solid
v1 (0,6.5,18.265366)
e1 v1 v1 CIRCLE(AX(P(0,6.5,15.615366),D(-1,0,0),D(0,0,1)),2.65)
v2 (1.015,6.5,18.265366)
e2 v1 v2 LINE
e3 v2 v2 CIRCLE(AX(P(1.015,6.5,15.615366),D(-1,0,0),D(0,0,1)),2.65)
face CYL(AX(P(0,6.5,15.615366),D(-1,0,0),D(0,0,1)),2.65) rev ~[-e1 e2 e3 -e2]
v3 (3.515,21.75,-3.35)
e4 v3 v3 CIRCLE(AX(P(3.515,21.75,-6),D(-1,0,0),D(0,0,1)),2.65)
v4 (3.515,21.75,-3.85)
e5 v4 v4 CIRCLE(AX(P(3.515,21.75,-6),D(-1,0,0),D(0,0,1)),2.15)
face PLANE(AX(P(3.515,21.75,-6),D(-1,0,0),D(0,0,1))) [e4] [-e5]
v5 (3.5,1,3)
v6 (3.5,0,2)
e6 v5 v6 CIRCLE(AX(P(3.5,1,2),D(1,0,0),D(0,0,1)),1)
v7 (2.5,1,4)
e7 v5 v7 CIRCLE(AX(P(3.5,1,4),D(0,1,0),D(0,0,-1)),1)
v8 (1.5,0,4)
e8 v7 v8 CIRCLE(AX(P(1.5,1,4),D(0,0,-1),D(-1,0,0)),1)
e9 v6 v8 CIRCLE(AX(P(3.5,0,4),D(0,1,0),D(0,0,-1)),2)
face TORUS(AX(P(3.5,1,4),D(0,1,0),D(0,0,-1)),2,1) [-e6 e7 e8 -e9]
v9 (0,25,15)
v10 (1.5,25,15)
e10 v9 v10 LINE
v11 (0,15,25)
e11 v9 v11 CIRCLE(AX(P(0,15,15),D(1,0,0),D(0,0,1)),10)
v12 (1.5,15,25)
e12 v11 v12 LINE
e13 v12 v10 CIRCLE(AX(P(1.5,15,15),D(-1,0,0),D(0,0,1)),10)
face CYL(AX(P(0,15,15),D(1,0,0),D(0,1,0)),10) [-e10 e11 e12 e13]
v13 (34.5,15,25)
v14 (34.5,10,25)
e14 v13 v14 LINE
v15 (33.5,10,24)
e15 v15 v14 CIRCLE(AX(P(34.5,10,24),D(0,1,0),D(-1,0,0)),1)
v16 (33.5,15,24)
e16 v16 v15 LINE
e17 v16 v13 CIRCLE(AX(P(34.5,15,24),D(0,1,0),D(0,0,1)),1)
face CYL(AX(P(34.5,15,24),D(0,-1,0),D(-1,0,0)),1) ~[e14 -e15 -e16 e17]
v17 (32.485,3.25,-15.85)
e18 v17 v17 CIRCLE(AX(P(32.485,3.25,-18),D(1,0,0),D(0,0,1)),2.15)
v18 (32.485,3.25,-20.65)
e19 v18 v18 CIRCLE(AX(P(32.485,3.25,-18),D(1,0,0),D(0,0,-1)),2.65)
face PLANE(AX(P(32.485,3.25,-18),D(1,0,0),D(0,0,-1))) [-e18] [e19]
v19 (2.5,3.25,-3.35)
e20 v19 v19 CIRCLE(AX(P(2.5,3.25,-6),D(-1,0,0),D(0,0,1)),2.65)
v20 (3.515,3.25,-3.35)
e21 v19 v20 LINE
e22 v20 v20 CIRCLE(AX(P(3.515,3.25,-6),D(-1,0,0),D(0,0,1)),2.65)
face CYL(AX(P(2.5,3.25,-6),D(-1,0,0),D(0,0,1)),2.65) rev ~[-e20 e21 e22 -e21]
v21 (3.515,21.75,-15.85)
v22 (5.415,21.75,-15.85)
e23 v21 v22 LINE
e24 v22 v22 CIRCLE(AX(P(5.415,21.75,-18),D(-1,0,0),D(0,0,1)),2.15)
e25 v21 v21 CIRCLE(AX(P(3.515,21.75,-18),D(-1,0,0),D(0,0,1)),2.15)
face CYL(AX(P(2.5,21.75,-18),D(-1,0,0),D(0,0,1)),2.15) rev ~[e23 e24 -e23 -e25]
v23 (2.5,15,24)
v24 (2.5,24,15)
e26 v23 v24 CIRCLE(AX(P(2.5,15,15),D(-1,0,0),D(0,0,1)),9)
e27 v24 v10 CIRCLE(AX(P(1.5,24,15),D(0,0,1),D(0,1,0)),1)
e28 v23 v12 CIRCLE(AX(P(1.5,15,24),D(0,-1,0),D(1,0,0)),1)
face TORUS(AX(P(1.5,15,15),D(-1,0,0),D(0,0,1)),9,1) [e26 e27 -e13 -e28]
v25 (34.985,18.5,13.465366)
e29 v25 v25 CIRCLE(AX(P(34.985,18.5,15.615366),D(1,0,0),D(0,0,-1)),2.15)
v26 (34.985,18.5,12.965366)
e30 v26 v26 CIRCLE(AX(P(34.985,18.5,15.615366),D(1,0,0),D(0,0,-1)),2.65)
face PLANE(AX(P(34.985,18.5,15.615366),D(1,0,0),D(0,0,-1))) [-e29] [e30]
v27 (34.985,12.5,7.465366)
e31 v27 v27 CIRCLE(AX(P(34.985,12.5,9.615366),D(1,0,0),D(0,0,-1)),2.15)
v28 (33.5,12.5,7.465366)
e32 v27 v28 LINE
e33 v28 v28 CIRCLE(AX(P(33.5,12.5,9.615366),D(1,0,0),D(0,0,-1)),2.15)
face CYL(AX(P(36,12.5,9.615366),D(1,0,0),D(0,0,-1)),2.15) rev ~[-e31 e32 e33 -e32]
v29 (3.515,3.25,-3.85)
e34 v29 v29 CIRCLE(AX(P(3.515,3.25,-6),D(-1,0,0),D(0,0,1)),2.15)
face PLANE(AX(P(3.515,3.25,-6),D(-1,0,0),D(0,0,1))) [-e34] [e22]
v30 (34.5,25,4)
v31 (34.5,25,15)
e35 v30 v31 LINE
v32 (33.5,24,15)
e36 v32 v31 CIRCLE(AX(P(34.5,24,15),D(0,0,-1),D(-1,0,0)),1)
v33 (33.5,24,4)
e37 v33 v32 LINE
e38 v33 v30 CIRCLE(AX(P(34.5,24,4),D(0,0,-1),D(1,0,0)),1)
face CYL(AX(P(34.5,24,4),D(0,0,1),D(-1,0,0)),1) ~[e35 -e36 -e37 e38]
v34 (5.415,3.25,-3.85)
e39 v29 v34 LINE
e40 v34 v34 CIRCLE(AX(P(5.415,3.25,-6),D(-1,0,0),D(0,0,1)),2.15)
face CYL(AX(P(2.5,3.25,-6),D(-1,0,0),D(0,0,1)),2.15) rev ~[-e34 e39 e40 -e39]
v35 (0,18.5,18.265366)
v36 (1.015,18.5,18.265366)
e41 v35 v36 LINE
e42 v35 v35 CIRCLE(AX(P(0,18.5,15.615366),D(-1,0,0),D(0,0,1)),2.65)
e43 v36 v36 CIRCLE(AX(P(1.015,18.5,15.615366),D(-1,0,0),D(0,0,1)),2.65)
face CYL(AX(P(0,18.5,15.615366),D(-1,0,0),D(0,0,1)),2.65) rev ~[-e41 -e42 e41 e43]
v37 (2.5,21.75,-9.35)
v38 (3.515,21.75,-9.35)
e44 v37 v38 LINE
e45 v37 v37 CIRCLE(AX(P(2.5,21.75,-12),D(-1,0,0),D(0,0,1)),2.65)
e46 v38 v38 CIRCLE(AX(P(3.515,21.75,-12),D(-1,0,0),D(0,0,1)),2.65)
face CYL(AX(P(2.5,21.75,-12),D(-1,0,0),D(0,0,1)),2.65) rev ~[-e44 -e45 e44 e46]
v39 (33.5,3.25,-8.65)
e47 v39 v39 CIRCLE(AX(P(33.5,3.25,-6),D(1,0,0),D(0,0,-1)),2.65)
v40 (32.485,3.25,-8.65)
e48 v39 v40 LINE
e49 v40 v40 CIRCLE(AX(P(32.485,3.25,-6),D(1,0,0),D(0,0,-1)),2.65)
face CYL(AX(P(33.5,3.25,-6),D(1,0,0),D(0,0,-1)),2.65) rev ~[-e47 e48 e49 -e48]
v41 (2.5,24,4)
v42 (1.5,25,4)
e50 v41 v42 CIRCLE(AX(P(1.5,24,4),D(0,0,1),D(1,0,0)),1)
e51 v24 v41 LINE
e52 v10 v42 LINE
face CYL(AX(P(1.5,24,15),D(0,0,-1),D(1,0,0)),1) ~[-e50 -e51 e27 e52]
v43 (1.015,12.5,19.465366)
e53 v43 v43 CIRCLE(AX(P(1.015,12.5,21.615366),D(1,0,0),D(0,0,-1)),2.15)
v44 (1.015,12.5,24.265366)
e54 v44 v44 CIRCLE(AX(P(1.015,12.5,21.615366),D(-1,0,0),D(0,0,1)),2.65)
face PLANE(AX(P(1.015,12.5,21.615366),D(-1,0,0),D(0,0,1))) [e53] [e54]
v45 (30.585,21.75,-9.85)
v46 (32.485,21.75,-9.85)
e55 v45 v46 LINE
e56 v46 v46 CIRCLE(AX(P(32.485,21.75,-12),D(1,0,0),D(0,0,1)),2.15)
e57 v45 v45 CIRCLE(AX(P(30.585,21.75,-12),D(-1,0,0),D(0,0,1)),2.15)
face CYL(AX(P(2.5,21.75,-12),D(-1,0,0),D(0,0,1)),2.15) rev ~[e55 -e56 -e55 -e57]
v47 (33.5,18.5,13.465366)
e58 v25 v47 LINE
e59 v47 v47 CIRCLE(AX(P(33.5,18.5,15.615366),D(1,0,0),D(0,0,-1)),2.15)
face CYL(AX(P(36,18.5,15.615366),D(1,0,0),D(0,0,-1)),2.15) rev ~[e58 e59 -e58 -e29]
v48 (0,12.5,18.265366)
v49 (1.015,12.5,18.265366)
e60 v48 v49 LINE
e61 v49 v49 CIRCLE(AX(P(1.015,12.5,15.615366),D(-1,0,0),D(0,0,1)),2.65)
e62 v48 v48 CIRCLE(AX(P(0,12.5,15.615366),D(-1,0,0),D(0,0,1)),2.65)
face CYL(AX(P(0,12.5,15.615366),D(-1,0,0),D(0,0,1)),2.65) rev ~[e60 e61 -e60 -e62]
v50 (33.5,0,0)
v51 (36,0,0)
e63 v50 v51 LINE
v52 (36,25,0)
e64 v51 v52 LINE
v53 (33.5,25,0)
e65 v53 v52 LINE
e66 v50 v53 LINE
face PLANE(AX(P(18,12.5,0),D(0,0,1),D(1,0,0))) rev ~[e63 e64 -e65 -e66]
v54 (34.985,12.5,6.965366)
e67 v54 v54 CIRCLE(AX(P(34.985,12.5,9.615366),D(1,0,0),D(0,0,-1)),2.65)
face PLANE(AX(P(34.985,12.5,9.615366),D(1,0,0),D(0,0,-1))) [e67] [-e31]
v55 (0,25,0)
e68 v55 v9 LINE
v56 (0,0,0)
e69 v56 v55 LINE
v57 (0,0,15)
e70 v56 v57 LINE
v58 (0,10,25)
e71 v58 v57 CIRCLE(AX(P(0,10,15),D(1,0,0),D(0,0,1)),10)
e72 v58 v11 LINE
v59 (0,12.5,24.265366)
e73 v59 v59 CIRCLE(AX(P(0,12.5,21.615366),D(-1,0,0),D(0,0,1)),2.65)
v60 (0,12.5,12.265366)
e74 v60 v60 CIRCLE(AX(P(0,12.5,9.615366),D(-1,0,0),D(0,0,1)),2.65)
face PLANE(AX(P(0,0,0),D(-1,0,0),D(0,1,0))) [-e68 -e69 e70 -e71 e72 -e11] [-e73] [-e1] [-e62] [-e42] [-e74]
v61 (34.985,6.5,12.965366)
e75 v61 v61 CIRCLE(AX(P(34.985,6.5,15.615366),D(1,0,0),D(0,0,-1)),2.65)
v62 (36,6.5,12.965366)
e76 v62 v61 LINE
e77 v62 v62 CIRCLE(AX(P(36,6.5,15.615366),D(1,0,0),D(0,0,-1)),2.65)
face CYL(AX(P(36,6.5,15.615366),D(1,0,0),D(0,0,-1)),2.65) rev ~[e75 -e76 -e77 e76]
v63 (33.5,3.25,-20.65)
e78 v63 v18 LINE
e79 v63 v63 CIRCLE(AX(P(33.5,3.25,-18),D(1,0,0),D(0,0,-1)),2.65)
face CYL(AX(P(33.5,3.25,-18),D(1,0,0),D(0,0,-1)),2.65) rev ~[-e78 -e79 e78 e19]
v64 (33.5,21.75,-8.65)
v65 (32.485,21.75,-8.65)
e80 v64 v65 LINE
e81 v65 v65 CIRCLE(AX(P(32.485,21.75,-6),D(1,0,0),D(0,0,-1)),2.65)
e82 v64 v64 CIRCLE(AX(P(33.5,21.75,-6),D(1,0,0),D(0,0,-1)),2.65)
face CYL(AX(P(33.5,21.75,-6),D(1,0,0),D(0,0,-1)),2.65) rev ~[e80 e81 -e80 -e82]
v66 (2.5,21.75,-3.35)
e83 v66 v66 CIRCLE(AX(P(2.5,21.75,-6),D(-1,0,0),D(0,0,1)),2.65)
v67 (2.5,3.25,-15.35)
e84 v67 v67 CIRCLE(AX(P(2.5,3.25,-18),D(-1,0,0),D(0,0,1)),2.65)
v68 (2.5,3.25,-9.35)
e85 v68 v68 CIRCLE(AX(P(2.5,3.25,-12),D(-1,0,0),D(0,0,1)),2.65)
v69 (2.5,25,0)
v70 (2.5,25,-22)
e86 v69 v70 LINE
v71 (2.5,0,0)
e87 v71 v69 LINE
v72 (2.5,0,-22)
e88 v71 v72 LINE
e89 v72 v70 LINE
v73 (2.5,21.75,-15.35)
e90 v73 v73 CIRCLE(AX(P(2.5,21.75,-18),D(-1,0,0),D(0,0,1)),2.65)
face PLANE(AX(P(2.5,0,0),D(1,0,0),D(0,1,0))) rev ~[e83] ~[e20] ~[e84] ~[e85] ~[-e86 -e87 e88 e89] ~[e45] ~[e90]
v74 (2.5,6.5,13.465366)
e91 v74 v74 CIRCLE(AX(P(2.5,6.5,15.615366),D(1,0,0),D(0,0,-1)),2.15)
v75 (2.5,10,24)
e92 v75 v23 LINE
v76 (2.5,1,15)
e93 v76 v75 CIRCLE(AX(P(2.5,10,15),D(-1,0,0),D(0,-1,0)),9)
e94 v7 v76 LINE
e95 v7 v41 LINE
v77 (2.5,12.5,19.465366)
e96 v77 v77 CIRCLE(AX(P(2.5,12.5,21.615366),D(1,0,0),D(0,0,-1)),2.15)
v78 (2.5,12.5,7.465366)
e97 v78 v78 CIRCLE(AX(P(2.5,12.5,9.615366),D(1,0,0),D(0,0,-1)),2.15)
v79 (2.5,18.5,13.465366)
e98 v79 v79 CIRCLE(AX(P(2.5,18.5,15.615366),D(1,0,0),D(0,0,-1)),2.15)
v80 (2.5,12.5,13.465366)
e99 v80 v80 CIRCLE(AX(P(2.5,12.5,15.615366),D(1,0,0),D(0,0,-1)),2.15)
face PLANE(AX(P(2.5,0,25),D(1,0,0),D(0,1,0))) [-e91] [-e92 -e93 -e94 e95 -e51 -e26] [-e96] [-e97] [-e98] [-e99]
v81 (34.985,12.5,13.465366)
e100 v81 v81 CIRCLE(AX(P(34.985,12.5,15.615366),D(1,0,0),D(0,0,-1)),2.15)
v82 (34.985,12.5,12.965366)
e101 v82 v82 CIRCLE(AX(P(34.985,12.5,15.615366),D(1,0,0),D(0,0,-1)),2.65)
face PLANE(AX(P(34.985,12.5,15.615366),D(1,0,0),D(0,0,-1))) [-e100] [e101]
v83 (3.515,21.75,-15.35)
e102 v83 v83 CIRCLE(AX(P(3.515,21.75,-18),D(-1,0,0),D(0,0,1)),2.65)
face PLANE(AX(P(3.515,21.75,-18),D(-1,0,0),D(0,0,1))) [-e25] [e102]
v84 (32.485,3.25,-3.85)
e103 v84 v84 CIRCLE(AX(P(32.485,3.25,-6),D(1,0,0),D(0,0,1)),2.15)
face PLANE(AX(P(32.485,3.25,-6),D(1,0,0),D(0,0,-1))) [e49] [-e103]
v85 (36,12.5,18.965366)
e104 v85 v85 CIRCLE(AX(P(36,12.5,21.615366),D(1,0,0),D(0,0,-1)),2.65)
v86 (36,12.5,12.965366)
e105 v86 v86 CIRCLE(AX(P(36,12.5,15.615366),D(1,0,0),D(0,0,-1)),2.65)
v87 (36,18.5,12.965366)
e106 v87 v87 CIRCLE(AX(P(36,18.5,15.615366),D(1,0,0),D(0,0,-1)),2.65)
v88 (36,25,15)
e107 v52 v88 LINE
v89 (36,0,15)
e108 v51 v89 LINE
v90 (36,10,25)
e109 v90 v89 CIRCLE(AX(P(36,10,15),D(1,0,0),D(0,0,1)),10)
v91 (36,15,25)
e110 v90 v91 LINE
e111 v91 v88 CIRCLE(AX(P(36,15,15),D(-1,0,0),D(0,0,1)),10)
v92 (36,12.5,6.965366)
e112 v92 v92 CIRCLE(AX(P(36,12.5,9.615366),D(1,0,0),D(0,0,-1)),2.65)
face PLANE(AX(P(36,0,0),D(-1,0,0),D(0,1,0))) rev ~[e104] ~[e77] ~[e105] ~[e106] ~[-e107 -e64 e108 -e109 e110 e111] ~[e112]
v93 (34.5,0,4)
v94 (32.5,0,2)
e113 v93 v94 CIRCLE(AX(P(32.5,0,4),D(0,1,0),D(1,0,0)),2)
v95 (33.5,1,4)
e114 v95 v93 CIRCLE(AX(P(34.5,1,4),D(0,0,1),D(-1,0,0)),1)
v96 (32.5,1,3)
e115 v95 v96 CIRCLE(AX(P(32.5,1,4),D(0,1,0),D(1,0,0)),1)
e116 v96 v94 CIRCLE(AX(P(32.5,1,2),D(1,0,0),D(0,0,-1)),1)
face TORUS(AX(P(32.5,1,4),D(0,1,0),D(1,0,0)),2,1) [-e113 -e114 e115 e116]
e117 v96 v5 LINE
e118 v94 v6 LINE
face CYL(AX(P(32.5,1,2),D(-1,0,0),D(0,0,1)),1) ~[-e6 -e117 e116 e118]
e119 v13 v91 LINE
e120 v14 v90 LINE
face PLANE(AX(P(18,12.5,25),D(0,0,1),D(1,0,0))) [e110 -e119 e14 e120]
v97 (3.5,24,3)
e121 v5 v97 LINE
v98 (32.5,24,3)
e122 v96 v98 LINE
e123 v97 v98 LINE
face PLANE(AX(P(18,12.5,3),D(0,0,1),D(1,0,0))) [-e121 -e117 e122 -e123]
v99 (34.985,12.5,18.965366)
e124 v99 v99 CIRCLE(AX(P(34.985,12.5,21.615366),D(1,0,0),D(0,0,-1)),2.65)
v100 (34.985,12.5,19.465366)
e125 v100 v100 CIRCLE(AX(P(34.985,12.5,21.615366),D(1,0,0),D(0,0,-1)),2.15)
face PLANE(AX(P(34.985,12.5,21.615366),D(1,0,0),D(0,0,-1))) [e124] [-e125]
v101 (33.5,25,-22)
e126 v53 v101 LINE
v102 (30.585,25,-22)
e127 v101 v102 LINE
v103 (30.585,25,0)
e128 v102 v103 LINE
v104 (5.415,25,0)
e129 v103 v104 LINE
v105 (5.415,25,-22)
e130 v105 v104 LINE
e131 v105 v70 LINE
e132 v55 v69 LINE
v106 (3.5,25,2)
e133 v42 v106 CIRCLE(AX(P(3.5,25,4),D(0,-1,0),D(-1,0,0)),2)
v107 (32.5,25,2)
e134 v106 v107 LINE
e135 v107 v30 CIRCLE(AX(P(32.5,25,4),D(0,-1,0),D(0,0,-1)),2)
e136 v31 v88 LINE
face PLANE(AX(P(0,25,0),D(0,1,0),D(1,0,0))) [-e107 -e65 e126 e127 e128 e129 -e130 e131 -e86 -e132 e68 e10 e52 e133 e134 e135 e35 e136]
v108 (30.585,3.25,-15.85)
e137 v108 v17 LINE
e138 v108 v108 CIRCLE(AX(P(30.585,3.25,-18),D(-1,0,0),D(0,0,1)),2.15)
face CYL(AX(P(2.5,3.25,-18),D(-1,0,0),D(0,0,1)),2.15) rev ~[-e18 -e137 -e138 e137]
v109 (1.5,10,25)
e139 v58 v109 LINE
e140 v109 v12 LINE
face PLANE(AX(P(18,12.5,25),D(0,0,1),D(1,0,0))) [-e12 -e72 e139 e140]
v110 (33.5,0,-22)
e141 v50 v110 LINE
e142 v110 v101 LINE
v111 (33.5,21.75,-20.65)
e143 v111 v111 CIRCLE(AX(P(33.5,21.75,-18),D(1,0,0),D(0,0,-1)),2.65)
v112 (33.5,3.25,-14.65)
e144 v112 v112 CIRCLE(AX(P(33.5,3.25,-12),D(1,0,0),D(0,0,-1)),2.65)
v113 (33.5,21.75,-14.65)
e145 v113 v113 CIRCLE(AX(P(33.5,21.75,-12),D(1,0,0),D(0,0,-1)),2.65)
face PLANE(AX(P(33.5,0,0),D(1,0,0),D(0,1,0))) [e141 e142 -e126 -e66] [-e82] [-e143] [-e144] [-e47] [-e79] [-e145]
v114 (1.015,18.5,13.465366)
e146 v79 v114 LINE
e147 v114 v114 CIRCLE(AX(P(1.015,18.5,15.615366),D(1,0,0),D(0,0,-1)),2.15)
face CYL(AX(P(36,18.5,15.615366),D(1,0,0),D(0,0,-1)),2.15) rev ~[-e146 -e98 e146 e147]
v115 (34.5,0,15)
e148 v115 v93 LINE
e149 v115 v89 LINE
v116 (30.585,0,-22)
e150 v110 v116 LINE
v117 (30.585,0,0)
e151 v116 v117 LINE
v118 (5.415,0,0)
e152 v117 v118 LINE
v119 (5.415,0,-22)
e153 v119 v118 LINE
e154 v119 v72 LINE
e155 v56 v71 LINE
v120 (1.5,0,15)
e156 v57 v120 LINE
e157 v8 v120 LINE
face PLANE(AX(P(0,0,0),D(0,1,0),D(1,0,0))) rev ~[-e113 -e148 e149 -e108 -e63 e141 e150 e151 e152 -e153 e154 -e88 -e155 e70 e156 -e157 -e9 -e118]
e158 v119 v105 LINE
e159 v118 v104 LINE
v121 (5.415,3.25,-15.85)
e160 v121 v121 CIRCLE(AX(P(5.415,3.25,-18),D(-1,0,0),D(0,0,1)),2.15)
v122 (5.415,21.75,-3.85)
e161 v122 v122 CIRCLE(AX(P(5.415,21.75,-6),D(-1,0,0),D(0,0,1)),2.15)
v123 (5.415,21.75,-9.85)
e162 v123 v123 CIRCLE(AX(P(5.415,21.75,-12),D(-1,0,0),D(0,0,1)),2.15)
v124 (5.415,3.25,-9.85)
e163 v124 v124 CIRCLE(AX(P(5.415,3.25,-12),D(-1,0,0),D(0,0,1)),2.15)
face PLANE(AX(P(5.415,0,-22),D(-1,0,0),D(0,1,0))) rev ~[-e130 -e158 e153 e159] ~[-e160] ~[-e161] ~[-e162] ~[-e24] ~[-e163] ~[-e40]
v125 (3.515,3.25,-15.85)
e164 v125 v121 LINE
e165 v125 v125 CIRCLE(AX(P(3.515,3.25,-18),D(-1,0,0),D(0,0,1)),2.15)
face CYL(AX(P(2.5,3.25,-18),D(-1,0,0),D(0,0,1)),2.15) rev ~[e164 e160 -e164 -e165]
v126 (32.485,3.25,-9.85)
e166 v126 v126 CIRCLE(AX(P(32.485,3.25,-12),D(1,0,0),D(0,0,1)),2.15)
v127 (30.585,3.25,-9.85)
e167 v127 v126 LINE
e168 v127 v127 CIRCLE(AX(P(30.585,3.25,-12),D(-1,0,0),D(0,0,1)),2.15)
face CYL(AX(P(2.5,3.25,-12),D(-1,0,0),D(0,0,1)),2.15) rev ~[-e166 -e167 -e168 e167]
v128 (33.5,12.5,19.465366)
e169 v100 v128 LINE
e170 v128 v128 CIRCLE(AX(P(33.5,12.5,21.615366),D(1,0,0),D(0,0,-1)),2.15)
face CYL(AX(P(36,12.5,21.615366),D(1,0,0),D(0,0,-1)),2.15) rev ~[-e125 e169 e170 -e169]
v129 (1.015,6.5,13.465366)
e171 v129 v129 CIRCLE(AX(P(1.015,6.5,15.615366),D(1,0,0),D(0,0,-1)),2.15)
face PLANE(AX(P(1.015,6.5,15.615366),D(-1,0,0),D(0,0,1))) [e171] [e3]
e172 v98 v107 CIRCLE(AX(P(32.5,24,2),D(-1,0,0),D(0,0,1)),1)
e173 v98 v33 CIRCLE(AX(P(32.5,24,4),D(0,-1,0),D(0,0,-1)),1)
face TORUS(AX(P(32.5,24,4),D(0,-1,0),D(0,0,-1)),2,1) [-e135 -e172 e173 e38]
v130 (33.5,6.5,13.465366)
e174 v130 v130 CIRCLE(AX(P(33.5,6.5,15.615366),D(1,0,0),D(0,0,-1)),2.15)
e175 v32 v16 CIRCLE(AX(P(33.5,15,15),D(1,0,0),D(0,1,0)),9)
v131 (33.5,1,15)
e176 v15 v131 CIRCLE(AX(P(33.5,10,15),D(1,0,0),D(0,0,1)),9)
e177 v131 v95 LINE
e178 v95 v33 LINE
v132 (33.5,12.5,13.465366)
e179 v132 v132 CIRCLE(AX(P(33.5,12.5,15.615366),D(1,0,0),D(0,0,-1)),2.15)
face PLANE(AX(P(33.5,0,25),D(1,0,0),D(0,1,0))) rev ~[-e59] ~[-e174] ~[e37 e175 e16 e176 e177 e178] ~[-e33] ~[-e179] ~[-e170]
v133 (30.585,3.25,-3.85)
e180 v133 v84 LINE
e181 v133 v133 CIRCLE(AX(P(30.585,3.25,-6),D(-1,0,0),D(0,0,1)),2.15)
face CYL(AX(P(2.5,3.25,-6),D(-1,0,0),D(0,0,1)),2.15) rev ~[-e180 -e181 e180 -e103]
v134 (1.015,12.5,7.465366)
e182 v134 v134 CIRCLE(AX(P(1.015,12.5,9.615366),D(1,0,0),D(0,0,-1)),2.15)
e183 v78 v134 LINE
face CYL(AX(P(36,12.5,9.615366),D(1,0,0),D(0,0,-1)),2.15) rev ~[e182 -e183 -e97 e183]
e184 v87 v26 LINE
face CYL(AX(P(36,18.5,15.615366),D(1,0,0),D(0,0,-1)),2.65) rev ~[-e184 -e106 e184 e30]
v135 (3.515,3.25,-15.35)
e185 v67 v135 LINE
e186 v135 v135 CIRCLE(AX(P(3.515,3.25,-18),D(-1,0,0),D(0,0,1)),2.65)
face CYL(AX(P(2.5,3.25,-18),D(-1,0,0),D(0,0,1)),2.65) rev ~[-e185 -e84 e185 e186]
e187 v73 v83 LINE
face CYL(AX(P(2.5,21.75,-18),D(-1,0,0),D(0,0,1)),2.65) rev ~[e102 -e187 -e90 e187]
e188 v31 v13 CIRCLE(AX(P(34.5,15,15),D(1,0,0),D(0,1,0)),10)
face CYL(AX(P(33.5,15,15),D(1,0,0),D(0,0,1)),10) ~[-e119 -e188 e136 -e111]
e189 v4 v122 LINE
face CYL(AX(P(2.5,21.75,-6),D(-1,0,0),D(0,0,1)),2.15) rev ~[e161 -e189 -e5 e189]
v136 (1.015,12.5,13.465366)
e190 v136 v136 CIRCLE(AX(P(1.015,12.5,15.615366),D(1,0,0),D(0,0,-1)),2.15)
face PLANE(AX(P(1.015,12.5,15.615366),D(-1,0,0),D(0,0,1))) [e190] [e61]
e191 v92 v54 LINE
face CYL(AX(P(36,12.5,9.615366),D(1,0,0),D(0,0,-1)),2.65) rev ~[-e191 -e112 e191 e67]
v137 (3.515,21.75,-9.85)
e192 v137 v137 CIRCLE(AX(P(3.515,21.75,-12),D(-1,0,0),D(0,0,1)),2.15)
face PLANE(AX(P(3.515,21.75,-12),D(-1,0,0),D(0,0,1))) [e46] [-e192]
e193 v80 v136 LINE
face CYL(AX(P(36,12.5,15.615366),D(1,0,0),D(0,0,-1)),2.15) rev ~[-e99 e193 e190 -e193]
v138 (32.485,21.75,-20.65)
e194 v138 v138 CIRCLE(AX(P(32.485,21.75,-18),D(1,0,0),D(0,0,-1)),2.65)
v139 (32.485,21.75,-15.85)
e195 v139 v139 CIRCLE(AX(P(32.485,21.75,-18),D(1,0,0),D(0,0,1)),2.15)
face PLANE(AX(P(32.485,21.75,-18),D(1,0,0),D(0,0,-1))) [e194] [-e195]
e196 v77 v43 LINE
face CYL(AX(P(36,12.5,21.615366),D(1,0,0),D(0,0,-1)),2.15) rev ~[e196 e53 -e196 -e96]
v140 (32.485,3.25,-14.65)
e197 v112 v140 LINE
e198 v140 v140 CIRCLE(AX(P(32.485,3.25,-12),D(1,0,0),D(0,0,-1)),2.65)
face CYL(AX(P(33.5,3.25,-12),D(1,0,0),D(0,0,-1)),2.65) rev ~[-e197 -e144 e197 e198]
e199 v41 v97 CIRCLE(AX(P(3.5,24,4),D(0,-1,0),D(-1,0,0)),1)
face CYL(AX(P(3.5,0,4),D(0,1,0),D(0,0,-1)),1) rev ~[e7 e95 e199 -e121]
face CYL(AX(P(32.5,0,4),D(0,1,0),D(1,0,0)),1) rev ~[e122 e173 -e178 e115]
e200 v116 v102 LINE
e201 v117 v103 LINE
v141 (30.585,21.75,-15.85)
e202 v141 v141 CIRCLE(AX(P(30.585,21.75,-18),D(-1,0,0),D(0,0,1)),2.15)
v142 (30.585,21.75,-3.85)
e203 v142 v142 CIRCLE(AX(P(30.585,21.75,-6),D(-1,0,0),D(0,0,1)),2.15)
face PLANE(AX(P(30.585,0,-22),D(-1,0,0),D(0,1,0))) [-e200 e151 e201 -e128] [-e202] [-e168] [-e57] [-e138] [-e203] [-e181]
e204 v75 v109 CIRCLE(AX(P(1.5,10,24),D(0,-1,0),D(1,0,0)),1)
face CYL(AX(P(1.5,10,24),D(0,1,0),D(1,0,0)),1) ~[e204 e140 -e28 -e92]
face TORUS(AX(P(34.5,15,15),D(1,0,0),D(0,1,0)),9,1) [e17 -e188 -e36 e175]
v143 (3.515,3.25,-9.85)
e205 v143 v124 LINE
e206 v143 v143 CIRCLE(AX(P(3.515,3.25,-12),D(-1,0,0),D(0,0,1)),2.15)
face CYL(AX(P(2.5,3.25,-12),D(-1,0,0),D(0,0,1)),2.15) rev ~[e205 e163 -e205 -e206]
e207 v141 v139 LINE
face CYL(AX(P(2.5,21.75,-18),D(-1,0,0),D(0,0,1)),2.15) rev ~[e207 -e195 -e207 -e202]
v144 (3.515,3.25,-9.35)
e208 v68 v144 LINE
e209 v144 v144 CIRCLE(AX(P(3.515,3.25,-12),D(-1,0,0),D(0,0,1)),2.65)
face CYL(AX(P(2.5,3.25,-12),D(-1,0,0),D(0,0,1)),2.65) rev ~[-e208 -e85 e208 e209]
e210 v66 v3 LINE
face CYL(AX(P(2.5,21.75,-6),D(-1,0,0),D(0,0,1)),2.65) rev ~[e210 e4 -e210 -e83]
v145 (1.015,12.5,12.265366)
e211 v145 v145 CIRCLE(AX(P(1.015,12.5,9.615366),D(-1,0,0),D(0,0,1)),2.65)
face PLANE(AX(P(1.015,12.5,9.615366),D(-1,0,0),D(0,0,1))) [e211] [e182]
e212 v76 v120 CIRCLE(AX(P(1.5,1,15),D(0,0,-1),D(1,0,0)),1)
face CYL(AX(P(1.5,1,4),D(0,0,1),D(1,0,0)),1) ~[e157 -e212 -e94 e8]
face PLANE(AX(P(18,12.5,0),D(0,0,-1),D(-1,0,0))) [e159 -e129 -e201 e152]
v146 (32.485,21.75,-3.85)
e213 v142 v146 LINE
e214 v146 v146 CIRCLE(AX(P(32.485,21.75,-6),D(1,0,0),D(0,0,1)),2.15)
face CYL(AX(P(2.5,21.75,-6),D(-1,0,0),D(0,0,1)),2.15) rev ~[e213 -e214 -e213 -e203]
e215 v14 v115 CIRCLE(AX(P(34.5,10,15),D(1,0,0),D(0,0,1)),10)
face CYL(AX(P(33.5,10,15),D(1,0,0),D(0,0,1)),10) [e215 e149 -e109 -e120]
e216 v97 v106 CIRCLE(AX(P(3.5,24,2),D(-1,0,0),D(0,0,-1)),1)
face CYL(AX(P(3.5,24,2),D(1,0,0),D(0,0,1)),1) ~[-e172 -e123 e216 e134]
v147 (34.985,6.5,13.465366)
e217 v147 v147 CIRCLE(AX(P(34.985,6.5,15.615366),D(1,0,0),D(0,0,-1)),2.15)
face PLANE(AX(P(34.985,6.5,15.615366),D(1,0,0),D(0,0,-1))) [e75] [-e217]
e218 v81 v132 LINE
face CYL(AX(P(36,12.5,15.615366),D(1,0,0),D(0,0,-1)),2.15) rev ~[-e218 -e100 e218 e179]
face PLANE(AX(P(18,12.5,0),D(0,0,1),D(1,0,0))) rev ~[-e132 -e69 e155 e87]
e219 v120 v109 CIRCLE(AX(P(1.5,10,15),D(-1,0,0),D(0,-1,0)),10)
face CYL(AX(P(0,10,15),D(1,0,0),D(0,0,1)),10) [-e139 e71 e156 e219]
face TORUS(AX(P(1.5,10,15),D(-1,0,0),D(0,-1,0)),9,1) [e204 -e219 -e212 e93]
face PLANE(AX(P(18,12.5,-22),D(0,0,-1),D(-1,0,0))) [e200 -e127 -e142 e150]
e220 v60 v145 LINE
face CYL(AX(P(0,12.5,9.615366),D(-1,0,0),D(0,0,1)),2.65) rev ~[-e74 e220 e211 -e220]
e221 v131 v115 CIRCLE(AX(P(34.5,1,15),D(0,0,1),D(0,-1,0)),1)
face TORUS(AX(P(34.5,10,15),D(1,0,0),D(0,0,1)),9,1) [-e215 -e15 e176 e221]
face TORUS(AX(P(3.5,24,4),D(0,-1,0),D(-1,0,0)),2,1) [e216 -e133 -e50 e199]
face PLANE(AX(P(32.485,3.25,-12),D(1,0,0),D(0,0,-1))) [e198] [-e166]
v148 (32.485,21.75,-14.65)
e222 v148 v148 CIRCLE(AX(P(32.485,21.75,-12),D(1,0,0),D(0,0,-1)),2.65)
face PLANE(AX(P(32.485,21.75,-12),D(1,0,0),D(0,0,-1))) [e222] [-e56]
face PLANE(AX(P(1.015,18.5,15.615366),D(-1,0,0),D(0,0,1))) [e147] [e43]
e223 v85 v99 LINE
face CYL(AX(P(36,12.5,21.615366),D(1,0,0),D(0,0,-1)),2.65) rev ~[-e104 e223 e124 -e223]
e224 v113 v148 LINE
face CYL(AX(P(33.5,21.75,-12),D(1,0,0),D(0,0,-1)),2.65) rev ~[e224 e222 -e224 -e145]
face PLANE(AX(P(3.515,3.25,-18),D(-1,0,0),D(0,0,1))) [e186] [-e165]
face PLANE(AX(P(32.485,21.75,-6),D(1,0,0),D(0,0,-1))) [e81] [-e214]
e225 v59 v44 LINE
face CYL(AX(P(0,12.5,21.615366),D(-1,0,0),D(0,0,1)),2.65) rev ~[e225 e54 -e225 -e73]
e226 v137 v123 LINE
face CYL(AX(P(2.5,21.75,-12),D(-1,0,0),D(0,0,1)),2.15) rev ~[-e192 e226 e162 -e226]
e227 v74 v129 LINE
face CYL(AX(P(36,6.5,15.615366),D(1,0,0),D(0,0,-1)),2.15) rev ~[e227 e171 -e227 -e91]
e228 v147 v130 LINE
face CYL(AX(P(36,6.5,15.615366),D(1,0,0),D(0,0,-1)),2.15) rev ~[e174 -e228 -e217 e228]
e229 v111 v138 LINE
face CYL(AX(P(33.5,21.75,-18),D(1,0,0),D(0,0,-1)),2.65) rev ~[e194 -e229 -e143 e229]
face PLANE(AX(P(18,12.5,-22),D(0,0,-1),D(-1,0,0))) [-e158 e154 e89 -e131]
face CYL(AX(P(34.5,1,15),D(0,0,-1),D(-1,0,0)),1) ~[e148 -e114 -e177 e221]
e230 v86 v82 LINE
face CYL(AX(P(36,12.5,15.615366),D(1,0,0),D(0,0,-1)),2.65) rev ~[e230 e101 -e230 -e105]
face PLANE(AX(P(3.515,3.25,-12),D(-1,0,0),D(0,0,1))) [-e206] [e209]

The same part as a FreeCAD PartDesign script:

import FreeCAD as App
import Part
import Sketcher

V = App.Vector
Q = App.Units.Quantity


def edges_at(feature, points):
    """Names of the edges that pass closest to the given points."""
    edges = feature.Shape.Edges
    near = lambda p: min(range(len(edges)), key=lambda i: edges[i].distToShape(Part.Vertex(*p))[0])
    return sorted({f"Edge{near(p) + 1}" for p in points})

doc = App.newDocument("Part")
params = doc.addObject("Spreadsheet::Sheet", "Params")
for row, (alias, value) in enumerate([
    ("sketch1_width", "36 mm"),
    ("sketch1_height", "25 mm"),
    ("pad1_length", "25 mm"),
    ("sketch2_width", "31 mm"),
    ("sketch2_height", "25 mm"),
    ("pocket1_length", "22 mm"),
    ("sketch3_diameter", "4.3 mm"),
    ("sketch4_diameter", "5.3 mm"),
    ("sketch4_diameter2", "4.3 mm"),
    ("pocket3_length", "1.015 mm"),
    ("sketch5_diameter", "5.3 mm"),
    ("sketch5_diameter2", "4.3 mm"),
    ("pocket4_length", "1.015 mm"),
    ("sketch6_width", "31 mm"),
    ("sketch6_height", "25 mm"),
    ("pad2_length", "22 mm"),
    ("sketch7_height", "25 mm"),
    ("sketch7_width", "25.17 mm"),
    ("pocket5_length", "22 mm"),
    ("sketch8_diameter", "4.3 mm"),
    ("sketch9_diameter", "5.3 mm"),
    ("sketch9_diameter2", "4.3 mm"),
    ("pocket7_length", "1.015 mm"),
    ("sketch10_diameter", "5.3 mm"),
    ("sketch10_diameter2", "4.3 mm"),
    ("pocket8_length", "1.015 mm"),
    ("fillet_radius", "10 mm"),
    ("fillet2_radius", "1 mm"),
    ("fillet3_radius", "1 mm"),
    ("fillet4_radius", "1 mm"),
], start=1):
    params.set(f"A{row}", alias)
    params.set(f"B{row}", "=" + value)
    params.setAlias(f"B{row}", alias)

body = doc.addObject("PartDesign::Body", "Body")

# Sketch on XY plane
sketch1 = body.newObject("Sketcher::SketchObject", "Sketch")
sketch1.AttachmentSupport = (doc.getObject("XY_Plane"), [""])
sketch1.MapMode = "FlatFace"
sketch1.addGeometry([
    Part.LineSegment(V(0, 25, 0), V(0, 0, 0)),
    Part.LineSegment(V(0, 0, 0), V(36, 0, 0)),
    Part.LineSegment(V(36, 0, 0), V(36, 25, 0)),
    Part.LineSegment(V(36, 25, 0), V(0, 25, 0)),
], False)
sketch1.addConstraint([
    Sketcher.Constraint("Coincident", 0, 2, 1, 1),
    Sketcher.Constraint("Coincident", 1, 2, 2, 1),
    Sketcher.Constraint("Coincident", 2, 2, 3, 1),
    Sketcher.Constraint("Coincident", 3, 2, 0, 1),
    Sketcher.Constraint("Vertical", 0),
    Sketcher.Constraint("Horizontal", 1),
    Sketcher.Constraint("Vertical", 2),
    Sketcher.Constraint("Horizontal", 3),
    Sketcher.Constraint("Coincident", 0, 2, -1, 1),
    Sketcher.Constraint("DistanceX", 1, 1, 1, 2, Q("36 mm")),
    Sketcher.Constraint("DistanceY", 0, 2, 0, 1, Q("25 mm")),
])
sketch1.setExpression("Constraints[9]", "Params.sketch1_width")
sketch1.setExpression("Constraints[10]", "Params.sketch1_height")
pad1 = body.newObject("PartDesign::Pad", "Pad")
pad1.Profile = sketch1
pad1.setExpression("Length", "Params.pad1_length")

# Sketch on XY plane
sketch2 = body.newObject("Sketcher::SketchObject", "Sketch001")
sketch2.AttachmentSupport = (doc.getObject("XY_Plane"), [""])
sketch2.MapMode = "FlatFace"
sketch2.AttachmentOffset = App.Placement(V(0, 0, 25), App.Rotation())
sketch2.addGeometry([
    Part.LineSegment(V(2, 25, 0), V(2, 0, 0)),
    Part.LineSegment(V(2, 0, 0), V(34, 0, 0)),
    Part.LineSegment(V(34, 0, 0), V(34, 25, 0)),
    Part.LineSegment(V(34, 25, 0), V(2, 25, 0)),
], False)
sketch2.addConstraint([
    Sketcher.Constraint("Coincident", 0, 2, 1, 1),
    Sketcher.Constraint("Coincident", 1, 2, 2, 1),
    Sketcher.Constraint("Coincident", 2, 2, 3, 1),
    Sketcher.Constraint("Coincident", 3, 2, 0, 1),
    Sketcher.Constraint("Vertical", 0),
    Sketcher.Constraint("Horizontal", 1),
    Sketcher.Constraint("Vertical", 2),
    Sketcher.Constraint("Horizontal", 3),
    Sketcher.Constraint("PointOnObject", 0, 2, -1),
    Sketcher.Constraint("DistanceX", 1, 1, 1, 2, Q("31 mm")),
    Sketcher.Constraint("DistanceY", 0, 2, 0, 1, Q("25 mm")),
    Sketcher.Constraint("DistanceX", -1, 1, 0, 2, Q("2.5 mm")),
])
sketch2.setExpression("Constraints[9]", "Params.sketch2_width")
sketch2.setExpression("Constraints[10]", "Params.sketch2_height")
pocket1 = body.newObject("PartDesign::Pocket", "Pocket")
pocket1.Profile = sketch2
pocket1.setExpression("Length", "Params.pocket1_length")

# Sketch on YZ plane
sketch3 = body.newObject("Sketcher::SketchObject", "Sketch002")
sketch3.AttachmentSupport = (doc.getObject("YZ_Plane"), [""])
sketch3.MapMode = "FlatFace"
sketch3.AttachmentOffset = App.Placement(V(0, 0, 36), App.Rotation())
sketch3.addGeometry([
    Part.Circle(V(18.5, 15.6, 0), V(0, 0, 1), 2.1),  # 0
    Part.Circle(V(12.5, 9.6, 0), V(0, 0, 1), 2.1),  # 1
    Part.Circle(V(12.5, 15.6, 0), V(0, 0, 1), 2.1),  # 2
    Part.Circle(V(12.5, 21.6, 0), V(0, 0, 1), 2.1),  # 3
    Part.Circle(V(6.5, 15.6, 0), V(0, 0, 1), 2.1),  # 4
], False)
sketch3.addConstraint([
    Sketcher.Constraint("Equal", 0, 1),
    Sketcher.Constraint("Equal", 1, 2),
    Sketcher.Constraint("Equal", 2, 3),
    Sketcher.Constraint("Equal", 3, 4),
    Sketcher.Constraint("Horizontal", 0, 3, 2, 3),
    Sketcher.Constraint("Horizontal", 2, 3, 4, 3),
    Sketcher.Constraint("Vertical", 1, 3, 2, 3),
    Sketcher.Constraint("Vertical", 2, 3, 3, 3),
    Sketcher.Constraint("Diameter", 0, Q("4.3 mm")),
    Sketcher.Constraint("DistanceX", 1, 3, 0, 3, Q("6 mm")),
    Sketcher.Constraint("DistanceY", 1, 3, 0, 3, Q("6 mm")),
    Sketcher.Constraint("DistanceY", 2, 3, 3, 3, Q("6 mm")),
    Sketcher.Constraint("DistanceX", 4, 3, 2, 3, Q("6 mm")),
    Sketcher.Constraint("DistanceX", -1, 1, 0, 3, Q("18.5 mm")),
    Sketcher.Constraint("DistanceY", -1, 1, 0, 3, Q("15.615366 mm")),
])
sketch3.setExpression("Constraints[8]", "Params.sketch3_diameter")
pocket2 = body.newObject("PartDesign::Pocket", "Pocket001")
pocket2.Profile = sketch3
pocket2.Type = "ThroughAll"

# Sketch on YZ plane
sketch4 = body.newObject("Sketcher::SketchObject", "Sketch003")
sketch4.AttachmentSupport = (doc.getObject("YZ_Plane"), [""])
sketch4.MapMode = "FlatFace"
sketch4.AttachmentOffset = App.Placement(V(0, 0, 36), App.Rotation())
sketch4.addGeometry([
    Part.Circle(V(18.5, 15.6, 0), V(0, 0, 1), 2.6),  # 0
    Part.Circle(V(18.5, 15.6, 0), V(0, 0, 1), 2.1),  # 1
    Part.Circle(V(12.5, 9.6, 0), V(0, 0, 1), 2.6),  # 2
    Part.Circle(V(12.5, 9.6, 0), V(0, 0, 1), 2.1),  # 3
    Part.Circle(V(12.5, 15.6, 0), V(0, 0, 1), 2.6),  # 4
    Part.Circle(V(12.5, 15.6, 0), V(0, 0, 1), 2.1),  # 5
    Part.Circle(V(12.5, 21.6, 0), V(0, 0, 1), 2.6),  # 6
    Part.Circle(V(12.5, 21.6, 0), V(0, 0, 1), 2.1),  # 7
    Part.Circle(V(6.5, 15.6, 0), V(0, 0, 1), 2.6),  # 8
    Part.Circle(V(6.5, 15.6, 0), V(0, 0, 1), 2.1),  # 9
], False)
sketch4.addConstraint([
    Sketcher.Constraint("Coincident", 1, 3, 0, 3),
    Sketcher.Constraint("Coincident", 3, 3, 2, 3),
    Sketcher.Constraint("Coincident", 5, 3, 4, 3),
    Sketcher.Constraint("Coincident", 7, 3, 6, 3),
    Sketcher.Constraint("Coincident", 9, 3, 8, 3),
    Sketcher.Constraint("Equal", 0, 2),
    Sketcher.Constraint("Equal", 1, 3),
    Sketcher.Constraint("Equal", 2, 4),
    Sketcher.Constraint("Equal", 3, 5),
    Sketcher.Constraint("Equal", 4, 6),
    Sketcher.Constraint("Equal", 5, 7),
    Sketcher.Constraint("Equal", 6, 8),
    Sketcher.Constraint("Equal", 7, 9),
    Sketcher.Constraint("Horizontal", 1, 3, 4, 3),
    Sketcher.Constraint("Horizontal", 5, 3, 8, 3),
    Sketcher.Constraint("Vertical", 3, 3, 4, 3),
    Sketcher.Constraint("Vertical", 5, 3, 6, 3),
    Sketcher.Constraint("Diameter", 0, Q("5.3 mm")),
    Sketcher.Constraint("Diameter", 1, Q("4.3 mm")),
    Sketcher.Constraint("DistanceX", 2, 3, 0, 3, Q("6 mm")),
    Sketcher.Constraint("DistanceY", 2, 3, 0, 3, Q("6 mm")),
    Sketcher.Constraint("DistanceY", 4, 3, 6, 3, Q("6 mm")),
    Sketcher.Constraint("DistanceX", 8, 3, 4, 3, Q("6 mm")),
    Sketcher.Constraint("DistanceX", -1, 1, 0, 3, Q("18.5 mm")),
    Sketcher.Constraint("DistanceY", -1, 1, 0, 3, Q("15.615366 mm")),
])
sketch4.setExpression("Constraints[17]", "Params.sketch4_diameter")
sketch4.setExpression("Constraints[18]", "Params.sketch4_diameter2")
pocket3 = body.newObject("PartDesign::Pocket", "Pocket002")
pocket3.Profile = sketch4
pocket3.setExpression("Length", "Params.pocket3_length")

# Sketch on YZ plane
sketch5 = body.newObject("Sketcher::SketchObject", "Sketch004")
sketch5.AttachmentSupport = (doc.getObject("YZ_Plane"), [""])
sketch5.MapMode = "FlatFace"
sketch5.addGeometry([
    Part.Circle(V(18.5, 15.6, 0), V(0, 0, 1), 2.6),  # 0
    Part.Circle(V(18.5, 15.6, 0), V(0, 0, 1), 2.1),  # 1
    Part.Circle(V(12.5, 21.6, 0), V(0, 0, 1), 2.6),  # 2
    Part.Circle(V(12.5, 21.6, 0), V(0, 0, 1), 2.1),  # 3
    Part.Circle(V(12.5, 15.6, 0), V(0, 0, 1), 2.6),  # 4
    Part.Circle(V(12.5, 15.6, 0), V(0, 0, 1), 2.1),  # 5
    Part.Circle(V(12.5, 9.6, 0), V(0, 0, 1), 2.6),  # 6
    Part.Circle(V(12.5, 9.6, 0), V(0, 0, 1), 2.1),  # 7
    Part.Circle(V(6.5, 15.6, 0), V(0, 0, 1), 2.6),  # 8
    Part.Circle(V(6.5, 15.6, 0), V(0, 0, 1), 2.1),  # 9
], False)
sketch5.addConstraint([
    Sketcher.Constraint("Coincident", 1, 3, 0, 3),
    Sketcher.Constraint("Coincident", 3, 3, 2, 3),
    Sketcher.Constraint("Coincident", 5, 3, 4, 3),
    Sketcher.Constraint("Coincident", 7, 3, 6, 3),
    Sketcher.Constraint("Coincident", 9, 3, 8, 3),
    Sketcher.Constraint("Equal", 0, 2),
    Sketcher.Constraint("Equal", 1, 3),
    Sketcher.Constraint("Equal", 2, 4),
    Sketcher.Constraint("Equal", 3, 5),
    Sketcher.Constraint("Equal", 4, 6),
    Sketcher.Constraint("Equal", 5, 7),
    Sketcher.Constraint("Equal", 6, 8),
    Sketcher.Constraint("Equal", 7, 9),
    Sketcher.Constraint("Horizontal", 1, 3, 4, 3),
    Sketcher.Constraint("Horizontal", 5, 3, 8, 3),
    Sketcher.Constraint("Vertical", 3, 3, 4, 3),
    Sketcher.Constraint("Vertical", 5, 3, 6, 3),
    Sketcher.Constraint("Diameter", 0, Q("5.3 mm")),
    Sketcher.Constraint("Diameter", 1, Q("4.3 mm")),
    Sketcher.Constraint("DistanceX", 2, 3, 0, 3, Q("6 mm")),
    Sketcher.Constraint("DistanceY", 0, 3, 2, 3, Q("6 mm")),
    Sketcher.Constraint("DistanceY", 6, 3, 4, 3, Q("6 mm")),
    Sketcher.Constraint("DistanceX", 8, 3, 4, 3, Q("6 mm")),
    Sketcher.Constraint("DistanceX", -1, 1, 0, 3, Q("18.5 mm")),
    Sketcher.Constraint("DistanceY", -1, 1, 0, 3, Q("15.615366 mm")),
])
sketch5.setExpression("Constraints[17]", "Params.sketch5_diameter")
sketch5.setExpression("Constraints[18]", "Params.sketch5_diameter2")
pocket4 = body.newObject("PartDesign::Pocket", "Pocket003")
pocket4.Profile = sketch5
pocket4.setExpression("Length", "Params.pocket4_length")
pocket4.Reversed = True

# Sketch on XY plane
sketch6 = body.newObject("Sketcher::SketchObject", "Sketch005")
sketch6.AttachmentSupport = (doc.getObject("XY_Plane"), [""])
sketch6.MapMode = "FlatFace"
sketch6.addGeometry([
    Part.LineSegment(V(34, 25, 0), V(34, 0, 0)),
    Part.LineSegment(V(34, 0, 0), V(2, 0, 0)),
    Part.LineSegment(V(2, 0, 0), V(2, 25, 0)),
    Part.LineSegment(V(2, 25, 0), V(34, 25, 0)),
], False)
sketch6.addConstraint([
    Sketcher.Constraint("Coincident", 0, 2, 1, 1),
    Sketcher.Constraint("Coincident", 1, 2, 2, 1),
    Sketcher.Constraint("Coincident", 2, 2, 3, 1),
    Sketcher.Constraint("Coincident", 3, 2, 0, 1),
    Sketcher.Constraint("Vertical", 0),
    Sketcher.Constraint("Horizontal", 1),
    Sketcher.Constraint("Vertical", 2),
    Sketcher.Constraint("Horizontal", 3),
    Sketcher.Constraint("PointOnObject", 0, 2, -1),
    Sketcher.Constraint("DistanceX", 1, 2, 1, 1, Q("31 mm")),
    Sketcher.Constraint("DistanceY", 0, 2, 0, 1, Q("25 mm")),
    Sketcher.Constraint("DistanceX", -1, 1, 0, 2, Q("33.5 mm")),
])
sketch6.setExpression("Constraints[9]", "Params.sketch6_width")
sketch6.setExpression("Constraints[10]", "Params.sketch6_height")
pad2 = body.newObject("PartDesign::Pad", "Pad001")
pad2.Profile = sketch6
pad2.setExpression("Length", "Params.pad2_length")
pad2.Reversed = True

# Sketch on XY plane
sketch7 = body.newObject("Sketcher::SketchObject", "Sketch006")
sketch7.AttachmentSupport = (doc.getObject("XY_Plane"), [""])
sketch7.MapMode = "FlatFace"
sketch7.AttachmentOffset = App.Placement(V(0, 0, -22), App.Rotation())
sketch7.addGeometry([
    Part.LineSegment(V(31, 25, 0), V(31, 0, 0)),
    Part.LineSegment(V(31, 0, 0), V(5, 0, 0)),
    Part.LineSegment(V(5, 0, 0), V(5, 25, 0)),
    Part.LineSegment(V(5, 25, 0), V(31, 25, 0)),
], False)
sketch7.addConstraint([
    Sketcher.Constraint("Coincident", 0, 2, 1, 1),
    Sketcher.Constraint("Coincident", 1, 2, 2, 1),
    Sketcher.Constraint("Coincident", 2, 2, 3, 1),
    Sketcher.Constraint("Coincident", 3, 2, 0, 1),
    Sketcher.Constraint("Vertical", 0),
    Sketcher.Constraint("Horizontal", 1),
    Sketcher.Constraint("Vertical", 2),
    Sketcher.Constraint("Horizontal", 3),
    Sketcher.Constraint("PointOnObject", 0, 2, -1),
    Sketcher.Constraint("DistanceY", 0, 2, 0, 1, Q("25 mm")),
    Sketcher.Constraint("DistanceX", 1, 2, 1, 1, Q("25.17 mm")),
    Sketcher.Constraint("DistanceX", -1, 1, 0, 2, Q("30.585 mm")),
])
sketch7.setExpression("Constraints[9]", "Params.sketch7_height")
sketch7.setExpression("Constraints[10]", "Params.sketch7_width")
pocket5 = body.newObject("PartDesign::Pocket", "Pocket004")
pocket5.Profile = sketch7
pocket5.setExpression("Length", "Params.pocket5_length")
pocket5.Reversed = True

# Sketch on YZ plane
sketch8 = body.newObject("Sketcher::SketchObject", "Sketch007")
sketch8.AttachmentSupport = (doc.getObject("YZ_Plane"), [""])
sketch8.MapMode = "FlatFace"
sketch8.AttachmentOffset = App.Placement(V(0, 0, 2.5), App.Rotation())
sketch8.addGeometry([
    Part.Circle(V(21.8, -18, 0), V(0, 0, 1), 2.1),  # 0
    Part.Circle(V(21.8, -12, 0), V(0, 0, 1), 2.1),  # 1
    Part.Circle(V(21.8, -6, 0), V(0, 0, 1), 2.1),  # 2
    Part.Circle(V(3.2, -18, 0), V(0, 0, 1), 2.1),  # 3
    Part.Circle(V(3.2, -12, 0), V(0, 0, 1), 2.1),  # 4
    Part.Circle(V(3.2, -6, 0), V(0, 0, 1), 2.1),  # 5
], False)
sketch8.addConstraint([
    Sketcher.Constraint("Equal", 0, 1),
    Sketcher.Constraint("Equal", 1, 2),
    Sketcher.Constraint("Equal", 2, 3),
    Sketcher.Constraint("Equal", 3, 4),
    Sketcher.Constraint("Equal", 4, 5),
    Sketcher.Constraint("Horizontal", 0, 3, 3, 3),
    Sketcher.Constraint("Horizontal", 1, 3, 4, 3),
    Sketcher.Constraint("Horizontal", 2, 3, 5, 3),
    Sketcher.Constraint("Vertical", 0, 3, 1, 3),
    Sketcher.Constraint("Vertical", 1, 3, 2, 3),
    Sketcher.Constraint("Vertical", 3, 3, 4, 3),
    Sketcher.Constraint("Vertical", 4, 3, 5, 3),
    Sketcher.Constraint("Diameter", 0, Q("4.3 mm")),
    Sketcher.Constraint("DistanceY", 0, 3, -1, 1, Q("18 mm")),
    Sketcher.Constraint("DistanceY", 1, 3, -1, 1, Q("12 mm")),
    Sketcher.Constraint("DistanceY", 2, 3, -1, 1, Q("6 mm")),
    Sketcher.Constraint("DistanceX", 3, 3, 0, 3, Q("18.5 mm")),
    Sketcher.Constraint("DistanceX", -1, 1, 0, 3, Q("21.75 mm")),
])
sketch8.setExpression("Constraints[12]", "Params.sketch8_diameter")
pocket6 = body.newObject("PartDesign::Pocket", "Pocket005")
pocket6.Profile = sketch8
pocket6.Type = "ThroughAll"
pocket6.Reversed = True

# Sketch on YZ plane
sketch9 = body.newObject("Sketcher::SketchObject", "Sketch008")
sketch9.AttachmentSupport = (doc.getObject("YZ_Plane"), [""])
sketch9.MapMode = "FlatFace"
sketch9.AttachmentOffset = App.Placement(V(0, 0, 2.5), App.Rotation())
sketch9.addGeometry([
    Part.Circle(V(21.8, -18, 0), V(0, 0, 1), 2.6),  # 0
    Part.Circle(V(21.8, -18, 0), V(0, 0, 1), 2.1),  # 1
    Part.Circle(V(21.8, -6, 0), V(0, 0, 1), 2.6),  # 2
    Part.Circle(V(21.8, -6, 0), V(0, 0, 1), 2.1),  # 3
    Part.Circle(V(3.2, -18, 0), V(0, 0, 1), 2.6),  # 4
    Part.Circle(V(3.2, -18, 0), V(0, 0, 1), 2.1),  # 5
    Part.Circle(V(3.2, -6, 0), V(0, 0, 1), 2.6),  # 6
    Part.Circle(V(3.2, -6, 0), V(0, 0, 1), 2.1),  # 7
    Part.Circle(V(21.8, -12, 0), V(0, 0, 1), 2.6),  # 8
    Part.Circle(V(21.8, -12, 0), V(0, 0, 1), 2.1),  # 9
    Part.Circle(V(3.2, -12, 0), V(0, 0, 1), 2.6),  # 10
    Part.Circle(V(3.2, -12, 0), V(0, 0, 1), 2.1),  # 11
], False)
sketch9.addConstraint([
    Sketcher.Constraint("Coincident", 1, 3, 0, 3),
    Sketcher.Constraint("Coincident", 3, 3, 2, 3),
    Sketcher.Constraint("Coincident", 5, 3, 4, 3),
    Sketcher.Constraint("Coincident", 7, 3, 6, 3),
    Sketcher.Constraint("Coincident", 9, 3, 8, 3),
    Sketcher.Constraint("Coincident", 11, 3, 10, 3),
    Sketcher.Constraint("Equal", 0, 2),
    Sketcher.Constraint("Equal", 1, 3),
    Sketcher.Constraint("Equal", 2, 4),
    Sketcher.Constraint("Equal", 3, 5),
    Sketcher.Constraint("Equal", 4, 6),
    Sketcher.Constraint("Equal", 5, 7),
    Sketcher.Constraint("Equal", 6, 8),
    Sketcher.Constraint("Equal", 7, 9),
    Sketcher.Constraint("Equal", 8, 10),
    Sketcher.Constraint("Equal", 9, 11),
    Sketcher.Constraint("Horizontal", 1, 3, 4, 3),
    Sketcher.Constraint("Horizontal", 3, 3, 6, 3),
    Sketcher.Constraint("Horizontal", 9, 3, 10, 3),
    Sketcher.Constraint("Vertical", 1, 3, 2, 3),
    Sketcher.Constraint("Vertical", 5, 3, 6, 3),
    Sketcher.Constraint("Vertical", 3, 3, 8, 3),
    Sketcher.Constraint("Vertical", 7, 3, 10, 3),
    Sketcher.Constraint("Diameter", 0, Q("5.3 mm")),
    Sketcher.Constraint("Diameter", 1, Q("4.3 mm")),
    Sketcher.Constraint("DistanceY", 0, 3, -1, 1, Q("18 mm")),
    Sketcher.Constraint("DistanceY", 2, 3, -1, 1, Q("6 mm")),
    Sketcher.Constraint("DistanceY", 8, 3, -1, 1, Q("12 mm")),
    Sketcher.Constraint("DistanceX", 4, 3, 0, 3, Q("18.5 mm")),
    Sketcher.Constraint("DistanceX", -1, 1, 0, 3, Q("21.75 mm")),
])
sketch9.setExpression("Constraints[23]", "Params.sketch9_diameter")
sketch9.setExpression("Constraints[24]", "Params.sketch9_diameter2")
pocket7 = body.newObject("PartDesign::Pocket", "Pocket006")
pocket7.Profile = sketch9
pocket7.setExpression("Length", "Params.pocket7_length")
pocket7.Reversed = True

# Sketch on YZ plane
sketch10 = body.newObject("Sketcher::SketchObject", "Sketch009")
sketch10.AttachmentSupport = (doc.getObject("YZ_Plane"), [""])
sketch10.MapMode = "FlatFace"
sketch10.AttachmentOffset = App.Placement(V(0, 0, 33.5), App.Rotation())
sketch10.addGeometry([
    Part.Circle(V(21.8, -6, 0), V(0, 0, 1), 2.6),  # 0
    Part.Circle(V(21.8, -6, 0), V(0, 0, 1), 2.1),  # 1
    Part.Circle(V(21.8, -12, 0), V(0, 0, 1), 2.6),  # 2
    Part.Circle(V(21.8, -12, 0), V(0, 0, 1), 2.1),  # 3
    Part.Circle(V(21.8, -18, 0), V(0, 0, 1), 2.6),  # 4
    Part.Circle(V(21.8, -18, 0), V(0, 0, 1), 2.1),  # 5
    Part.Circle(V(3.2, -6, 0), V(0, 0, 1), 2.6),  # 6
    Part.Circle(V(3.2, -6, 0), V(0, 0, 1), 2.1),  # 7
    Part.Circle(V(3.2, -12, 0), V(0, 0, 1), 2.6),  # 8
    Part.Circle(V(3.2, -12, 0), V(0, 0, 1), 2.1),  # 9
    Part.Circle(V(3.2, -18, 0), V(0, 0, 1), 2.6),  # 10
    Part.Circle(V(3.2, -18, 0), V(0, 0, 1), 2.1),  # 11
], False)
sketch10.addConstraint([
    Sketcher.Constraint("Coincident", 1, 3, 0, 3),
    Sketcher.Constraint("Coincident", 3, 3, 2, 3),
    Sketcher.Constraint("Coincident", 5, 3, 4, 3),
    Sketcher.Constraint("Coincident", 7, 3, 6, 3),
    Sketcher.Constraint("Coincident", 9, 3, 8, 3),
    Sketcher.Constraint("Coincident", 11, 3, 10, 3),
    Sketcher.Constraint("Equal", 0, 2),
    Sketcher.Constraint("Equal", 1, 3),
    Sketcher.Constraint("Equal", 2, 4),
    Sketcher.Constraint("Equal", 3, 5),
    Sketcher.Constraint("Equal", 4, 6),
    Sketcher.Constraint("Equal", 5, 7),
    Sketcher.Constraint("Equal", 6, 8),
    Sketcher.Constraint("Equal", 7, 9),
    Sketcher.Constraint("Equal", 8, 10),
    Sketcher.Constraint("Equal", 9, 11),
    Sketcher.Constraint("Horizontal", 1, 3, 6, 3),
    Sketcher.Constraint("Horizontal", 3, 3, 8, 3),
    Sketcher.Constraint("Horizontal", 5, 3, 10, 3),
    Sketcher.Constraint("Vertical", 1, 3, 2, 3),
    Sketcher.Constraint("Vertical", 3, 3, 4, 3),
    Sketcher.Constraint("Vertical", 7, 3, 8, 3),
    Sketcher.Constraint("Vertical", 9, 3, 10, 3),
    Sketcher.Constraint("Diameter", 0, Q("5.3 mm")),
    Sketcher.Constraint("Diameter", 1, Q("4.3 mm")),
    Sketcher.Constraint("DistanceY", 0, 3, -1, 1, Q("6 mm")),
    Sketcher.Constraint("DistanceY", 2, 3, -1, 1, Q("12 mm")),
    Sketcher.Constraint("DistanceY", 4, 3, -1, 1, Q("18 mm")),
    Sketcher.Constraint("DistanceX", 6, 3, 0, 3, Q("18.5 mm")),
    Sketcher.Constraint("DistanceX", -1, 1, 0, 3, Q("21.75 mm")),
])
sketch10.setExpression("Constraints[23]", "Params.sketch10_diameter")
sketch10.setExpression("Constraints[24]", "Params.sketch10_diameter2")
pocket8 = body.newObject("PartDesign::Pocket", "Pocket007")
pocket8.Profile = sketch10
pocket8.setExpression("Length", "Params.pocket8_length")
doc.recompute()

fillet = body.newObject("PartDesign::Fillet", "Fillet")
fillet.Base = (pocket8, edges_at(pocket8, [
    (34.75, 25, 25),
    (34.75, 0, 25),
    (1.25, 25, 25),
    (1.25, 0, 25),
]))
fillet.setExpression("Radius", "Params.fillet_radius")
doc.recompute()

fillet2 = body.newObject("PartDesign::Fillet", "Fillet001")
fillet2.Base = (fillet, edges_at(fillet, [(33.5, 12.5, 3)]))
fillet2.setExpression("Radius", "Params.fillet2_radius")
doc.recompute()

fillet3 = body.newObject("PartDesign::Fillet", "Fillet002")
fillet3.Base = (fillet2, edges_at(fillet2, [(2.5, 12.5, 3)]))
fillet3.setExpression("Radius", "Params.fillet3_radius")
doc.recompute()

fillet4 = body.newObject("PartDesign::Fillet", "Fillet003")
fillet4.Base = (fillet3, edges_at(fillet3, [
    (2.5, 12.5, 25),
    (2.5, 22.071, 22.071),
    (2.5, 2.929, 22.071),
    (33.5, 12.5, 25),
    (33.5, 22.071, 22.071),
    (33.5, 2.929, 22.071),
    (18, 25, 3),
    (33.5, 0, 9.5),
    (33.5, 25, 9.5),
    (33.207, 25, 3.293),
    (33.207, 0, 3.293),
    (18, 0, 3),
    (2.5, 0, 9.5),
    (2.5, 25, 9.5),
    (2.793, 0, 3.293),
    (2.793, 25, 3.293),
]))
fillet4.setExpression("Radius", "Params.fillet4_radius")

doc.recompute()
